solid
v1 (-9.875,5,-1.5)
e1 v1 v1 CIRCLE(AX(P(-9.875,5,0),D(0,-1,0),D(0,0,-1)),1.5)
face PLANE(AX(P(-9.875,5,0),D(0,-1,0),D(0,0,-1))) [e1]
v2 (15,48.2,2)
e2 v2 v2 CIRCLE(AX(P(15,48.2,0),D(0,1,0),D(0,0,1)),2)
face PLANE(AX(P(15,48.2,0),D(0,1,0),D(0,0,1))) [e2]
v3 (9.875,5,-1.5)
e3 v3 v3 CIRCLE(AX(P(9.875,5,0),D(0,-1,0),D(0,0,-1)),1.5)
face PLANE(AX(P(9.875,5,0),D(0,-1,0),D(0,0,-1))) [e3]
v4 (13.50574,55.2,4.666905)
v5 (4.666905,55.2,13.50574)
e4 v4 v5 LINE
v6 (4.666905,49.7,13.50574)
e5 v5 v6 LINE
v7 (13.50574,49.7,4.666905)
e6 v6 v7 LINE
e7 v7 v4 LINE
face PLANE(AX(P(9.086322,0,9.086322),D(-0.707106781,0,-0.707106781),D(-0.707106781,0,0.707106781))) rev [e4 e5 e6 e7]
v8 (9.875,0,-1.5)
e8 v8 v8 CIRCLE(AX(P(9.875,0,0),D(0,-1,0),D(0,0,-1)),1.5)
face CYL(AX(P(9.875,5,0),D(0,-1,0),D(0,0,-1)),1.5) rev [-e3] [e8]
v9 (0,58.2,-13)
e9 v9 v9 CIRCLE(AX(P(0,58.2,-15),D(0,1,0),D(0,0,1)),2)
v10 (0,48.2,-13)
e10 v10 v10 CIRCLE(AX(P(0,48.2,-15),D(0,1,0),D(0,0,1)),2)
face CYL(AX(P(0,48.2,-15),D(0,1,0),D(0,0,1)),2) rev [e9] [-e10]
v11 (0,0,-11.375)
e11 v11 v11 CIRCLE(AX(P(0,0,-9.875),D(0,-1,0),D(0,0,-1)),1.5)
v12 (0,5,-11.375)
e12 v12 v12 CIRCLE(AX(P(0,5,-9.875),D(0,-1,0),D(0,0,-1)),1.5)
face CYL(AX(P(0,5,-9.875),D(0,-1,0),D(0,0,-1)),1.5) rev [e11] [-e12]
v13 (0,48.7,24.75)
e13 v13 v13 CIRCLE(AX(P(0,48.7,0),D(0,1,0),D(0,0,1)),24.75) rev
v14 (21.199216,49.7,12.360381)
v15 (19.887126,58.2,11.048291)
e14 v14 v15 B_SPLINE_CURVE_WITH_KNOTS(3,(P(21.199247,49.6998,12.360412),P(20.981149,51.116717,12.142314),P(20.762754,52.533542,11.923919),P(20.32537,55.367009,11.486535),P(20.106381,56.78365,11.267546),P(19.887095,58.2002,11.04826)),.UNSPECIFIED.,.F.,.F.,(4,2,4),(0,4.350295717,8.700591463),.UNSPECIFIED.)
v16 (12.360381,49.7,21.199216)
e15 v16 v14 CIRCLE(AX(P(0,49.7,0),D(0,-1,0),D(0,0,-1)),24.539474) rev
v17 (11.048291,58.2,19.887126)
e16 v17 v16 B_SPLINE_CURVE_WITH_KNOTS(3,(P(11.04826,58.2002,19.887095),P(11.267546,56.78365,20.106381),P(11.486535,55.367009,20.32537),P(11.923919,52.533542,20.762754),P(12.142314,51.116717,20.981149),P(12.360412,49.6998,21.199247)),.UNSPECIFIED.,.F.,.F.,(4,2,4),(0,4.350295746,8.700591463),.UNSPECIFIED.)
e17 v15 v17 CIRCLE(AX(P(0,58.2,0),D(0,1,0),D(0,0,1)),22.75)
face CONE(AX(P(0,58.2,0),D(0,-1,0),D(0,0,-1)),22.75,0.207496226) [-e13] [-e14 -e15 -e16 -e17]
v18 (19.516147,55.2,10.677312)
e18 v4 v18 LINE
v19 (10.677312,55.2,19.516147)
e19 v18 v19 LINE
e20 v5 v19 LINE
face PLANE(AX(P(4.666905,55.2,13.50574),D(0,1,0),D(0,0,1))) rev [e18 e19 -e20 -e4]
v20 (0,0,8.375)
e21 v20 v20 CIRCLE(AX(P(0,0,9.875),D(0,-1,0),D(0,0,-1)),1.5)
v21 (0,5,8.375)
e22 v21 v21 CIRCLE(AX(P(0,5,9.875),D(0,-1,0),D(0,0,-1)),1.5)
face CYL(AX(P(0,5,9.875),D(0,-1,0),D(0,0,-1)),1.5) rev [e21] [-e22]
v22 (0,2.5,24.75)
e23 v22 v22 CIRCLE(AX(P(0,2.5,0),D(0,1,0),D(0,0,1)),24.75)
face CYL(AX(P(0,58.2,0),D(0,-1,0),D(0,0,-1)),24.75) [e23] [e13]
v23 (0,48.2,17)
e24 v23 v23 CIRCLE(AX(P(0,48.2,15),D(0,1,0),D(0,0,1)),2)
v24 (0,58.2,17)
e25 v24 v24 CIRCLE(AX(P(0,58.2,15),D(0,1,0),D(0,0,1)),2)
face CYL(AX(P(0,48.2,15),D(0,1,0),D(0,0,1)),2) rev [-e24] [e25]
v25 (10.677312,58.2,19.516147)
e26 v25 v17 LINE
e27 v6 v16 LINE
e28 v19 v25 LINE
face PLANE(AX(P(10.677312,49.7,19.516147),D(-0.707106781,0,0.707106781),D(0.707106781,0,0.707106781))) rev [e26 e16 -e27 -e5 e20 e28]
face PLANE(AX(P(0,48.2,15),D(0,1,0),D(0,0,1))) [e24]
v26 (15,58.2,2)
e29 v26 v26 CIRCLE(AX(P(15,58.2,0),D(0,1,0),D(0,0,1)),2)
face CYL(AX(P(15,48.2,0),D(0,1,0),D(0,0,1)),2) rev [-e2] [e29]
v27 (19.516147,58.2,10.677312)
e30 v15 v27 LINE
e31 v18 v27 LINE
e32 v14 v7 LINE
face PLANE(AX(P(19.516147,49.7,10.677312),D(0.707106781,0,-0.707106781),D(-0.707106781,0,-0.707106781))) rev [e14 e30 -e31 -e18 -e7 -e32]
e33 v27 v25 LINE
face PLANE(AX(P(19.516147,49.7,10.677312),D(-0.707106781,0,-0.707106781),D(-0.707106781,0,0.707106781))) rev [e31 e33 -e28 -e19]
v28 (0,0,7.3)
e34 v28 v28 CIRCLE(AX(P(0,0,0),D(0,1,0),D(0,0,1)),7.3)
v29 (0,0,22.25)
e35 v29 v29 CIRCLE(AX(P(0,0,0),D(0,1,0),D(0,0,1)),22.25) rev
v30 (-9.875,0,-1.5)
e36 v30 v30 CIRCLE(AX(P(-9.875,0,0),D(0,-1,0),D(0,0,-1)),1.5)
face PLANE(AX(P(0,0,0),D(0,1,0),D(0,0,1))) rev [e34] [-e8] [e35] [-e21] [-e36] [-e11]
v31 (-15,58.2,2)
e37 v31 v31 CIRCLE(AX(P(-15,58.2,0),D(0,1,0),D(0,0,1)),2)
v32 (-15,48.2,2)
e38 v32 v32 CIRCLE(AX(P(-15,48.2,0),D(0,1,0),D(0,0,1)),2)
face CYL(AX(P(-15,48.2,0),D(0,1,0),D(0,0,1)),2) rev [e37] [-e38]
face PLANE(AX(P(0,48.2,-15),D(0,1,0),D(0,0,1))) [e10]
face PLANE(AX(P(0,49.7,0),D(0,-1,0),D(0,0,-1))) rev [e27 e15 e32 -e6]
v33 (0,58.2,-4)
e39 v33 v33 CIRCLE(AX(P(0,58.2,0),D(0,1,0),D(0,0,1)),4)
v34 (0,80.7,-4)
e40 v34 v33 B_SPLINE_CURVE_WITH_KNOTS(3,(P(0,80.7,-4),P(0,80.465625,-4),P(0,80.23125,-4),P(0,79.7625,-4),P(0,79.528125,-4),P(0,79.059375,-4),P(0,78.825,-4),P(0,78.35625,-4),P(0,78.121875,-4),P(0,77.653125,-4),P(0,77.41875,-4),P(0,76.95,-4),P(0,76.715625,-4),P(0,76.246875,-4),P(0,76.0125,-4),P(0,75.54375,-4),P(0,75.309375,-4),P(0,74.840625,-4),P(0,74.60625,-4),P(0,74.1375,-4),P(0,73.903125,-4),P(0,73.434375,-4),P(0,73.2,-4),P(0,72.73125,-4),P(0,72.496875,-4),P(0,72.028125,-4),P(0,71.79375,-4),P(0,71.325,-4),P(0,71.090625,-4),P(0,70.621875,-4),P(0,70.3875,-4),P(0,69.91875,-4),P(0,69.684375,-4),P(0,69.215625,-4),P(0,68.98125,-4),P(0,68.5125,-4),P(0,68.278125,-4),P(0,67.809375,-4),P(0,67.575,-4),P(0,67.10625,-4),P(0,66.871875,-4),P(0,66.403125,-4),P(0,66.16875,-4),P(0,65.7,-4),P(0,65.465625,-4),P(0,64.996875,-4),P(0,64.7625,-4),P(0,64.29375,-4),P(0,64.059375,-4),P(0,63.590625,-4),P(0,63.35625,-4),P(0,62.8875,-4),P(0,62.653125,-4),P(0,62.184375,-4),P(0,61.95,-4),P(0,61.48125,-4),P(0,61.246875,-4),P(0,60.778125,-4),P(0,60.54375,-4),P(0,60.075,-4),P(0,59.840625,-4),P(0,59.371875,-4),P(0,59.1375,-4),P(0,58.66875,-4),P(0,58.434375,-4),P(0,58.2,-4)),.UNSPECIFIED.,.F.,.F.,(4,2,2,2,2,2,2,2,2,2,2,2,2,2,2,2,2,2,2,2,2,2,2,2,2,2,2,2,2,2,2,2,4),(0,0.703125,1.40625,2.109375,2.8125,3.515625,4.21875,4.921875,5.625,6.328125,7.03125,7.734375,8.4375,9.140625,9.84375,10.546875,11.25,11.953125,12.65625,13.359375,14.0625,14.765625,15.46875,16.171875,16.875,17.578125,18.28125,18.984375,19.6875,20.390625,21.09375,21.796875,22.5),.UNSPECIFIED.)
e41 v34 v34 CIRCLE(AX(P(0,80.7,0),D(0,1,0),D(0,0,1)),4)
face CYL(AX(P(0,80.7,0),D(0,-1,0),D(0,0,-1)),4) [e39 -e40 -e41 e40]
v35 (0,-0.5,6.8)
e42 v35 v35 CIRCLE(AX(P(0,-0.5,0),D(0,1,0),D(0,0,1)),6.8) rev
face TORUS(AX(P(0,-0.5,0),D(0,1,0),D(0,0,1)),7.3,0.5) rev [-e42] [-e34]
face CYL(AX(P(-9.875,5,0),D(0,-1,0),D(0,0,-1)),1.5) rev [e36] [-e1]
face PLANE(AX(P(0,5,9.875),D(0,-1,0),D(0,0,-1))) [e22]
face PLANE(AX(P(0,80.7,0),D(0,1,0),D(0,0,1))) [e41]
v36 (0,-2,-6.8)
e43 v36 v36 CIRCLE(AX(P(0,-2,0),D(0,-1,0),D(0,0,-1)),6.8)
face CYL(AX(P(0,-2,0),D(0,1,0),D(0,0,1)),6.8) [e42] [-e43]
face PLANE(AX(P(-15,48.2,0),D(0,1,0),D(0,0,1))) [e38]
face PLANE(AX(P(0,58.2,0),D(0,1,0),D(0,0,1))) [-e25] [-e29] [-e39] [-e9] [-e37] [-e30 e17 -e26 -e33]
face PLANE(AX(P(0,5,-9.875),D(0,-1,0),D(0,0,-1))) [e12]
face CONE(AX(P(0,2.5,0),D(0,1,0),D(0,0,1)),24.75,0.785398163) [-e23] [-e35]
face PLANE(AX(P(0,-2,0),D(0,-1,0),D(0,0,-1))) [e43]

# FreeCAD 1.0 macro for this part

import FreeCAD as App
import Part
import Sketcher
from FreeCAD import Vector
Q = App.Units.Quantity


def edges_at(feature, points):
    """Names of the edges that pass closest to the given points."""
    edges = feature.Shape.Edges
    near = lambda p: min(range(len(edges)), key=lambda i: edges[i].distToShape(Part.Vertex(*p))[0])
    return sorted({f"Edge{near(p) + 1}" for p in points})

doc = App.newDocument("Part")
body = doc.addObject("PartDesign::Body", "Body")

# Sketch on XZ plane
sketch1 = body.newObject("Sketcher::SketchObject", "Sketch")
sketch1.AttachmentSupport = (doc.getObject("XZ_Plane"), [""])
sketch1.MapMode = "FlatFace"
sketch1.addGeometry(Part.Circle(Vector(0, 0, 0), Vector(0, 0, 1), 25), False)
sketch1.addConstraint(Sketcher.Constraint("Coincident", 0, 3, -1, 1))
sketch1.addConstraint(Sketcher.Constraint("Diameter", 0, 49.5))
pad1 = body.newObject("PartDesign::Pad", "Pad")
pad1.Profile = sketch1
pad1.Length = 58.2
pad1.Reversed = True

# Sketch on XZ plane
sketch2 = body.newObject("Sketcher::SketchObject", "Sketch001")
sketch2.AttachmentSupport = (doc.getObject("XZ_Plane"), [""])
sketch2.MapMode = "FlatFace"
sketch2.AttachmentOffset = App.Placement(Vector(0, 0, -58.2), App.Rotation())
sketch2.addGeometry(Part.Circle(Vector(0, 0, 0), Vector(0, 0, 1), 4), False)
sketch2.addConstraint(Sketcher.Constraint("Coincident", 0, 3, -1, 1))
sketch2.addConstraint(Sketcher.Constraint("Diameter", 0, 8.0))
pad2 = body.newObject("PartDesign::Pad", "Pad001")
pad2.Profile = sketch2
pad2.Length = 22.5
pad2.Reversed = True
doc.recompute()

chamfer = body.newObject("PartDesign::Chamfer", "Chamfer")
chamfer.Base = (pad2, edges_at(pad2, [(0, 0, -24.75)]))
chamfer.Size = 2.5

# Sketch on XZ plane
sketch3 = body.newObject("Sketcher::SketchObject", "Sketch002")
sketch3.AttachmentSupport = (doc.getObject("XZ_Plane"), [""])
sketch3.MapMode = "FlatFace"
sketch3.addGeometry(Part.Circle(Vector(0, 0, 0), Vector(0, 0, 1), 7), False)
sketch3.addConstraint(Sketcher.Constraint("Coincident", 0, 3, -1, 1))
sketch3.addConstraint(Sketcher.Constraint("Diameter", 0, 13.6))
pad3 = body.newObject("PartDesign::Pad", "Pad002")
pad3.Profile = sketch3
pad3.Length = 2
doc.recompute()

fillet = body.newObject("PartDesign::Fillet", "Fillet")
fillet.Base = (pad3, edges_at(pad3, [(0, 0, 6.8)]))
fillet.Radius = 0.5

# Sketch on XZ plane
sketch4 = body.newObject("Sketcher::SketchObject", "Sketch003")
sketch4.AttachmentSupport = (doc.getObject("XZ_Plane"), [""])
sketch4.MapMode = "FlatFace"
sketch4.AttachmentOffset = App.Placement(Vector(0, 0, -58.2), App.Rotation())
sketch4.addGeometry(Part.Circle(Vector(0, -15, 0), Vector(0, 0, 1), 2), False)
sketch4.addGeometry(Part.Circle(Vector(15, 0, 0), Vector(0, 0, 1), 2), False)
sketch4.addGeometry(Part.Circle(Vector(0, 15, 0), Vector(0, 0, 1), 2), False)
sketch4.addGeometry(Part.Circle(Vector(-15, 0, 0), Vector(0, 0, 1), 2), False)
sketch4.addConstraint(Sketcher.Constraint("Equal", 0, 1))
sketch4.addConstraint(Sketcher.Constraint("Equal", 1, 2))
sketch4.addConstraint(Sketcher.Constraint("Equal", 2, 3))
sketch4.addConstraint(Sketcher.Constraint("Symmetric", 0, 3, 2, 3, -1, 1))
sketch4.addConstraint(Sketcher.Constraint("Symmetric", 1, 3, 3, 3, -1, 1))
sketch4.addConstraint(Sketcher.Constraint("PointOnObject", 0, 3, -2))
sketch4.addConstraint(Sketcher.Constraint("PointOnObject", 1, 3, -1))
sketch4.addConstraint(Sketcher.Constraint("Diameter", 0, 4.0))
sketch4.addConstraint(Sketcher.Constraint("DistanceY", 0, 3, -1, 1, 15.0))
sketch4.addConstraint(Sketcher.Constraint("DistanceX", -1, 1, 1, 3, 15.0))
pocket1 = body.newObject("PartDesign::Pocket", "Pocket")
pocket1.Profile = sketch4
pocket1.Length = 10
pocket1.Reversed = True

# Sketch on XZ plane
sketch5 = body.newObject("Sketcher::SketchObject", "Sketch004")
sketch5.AttachmentSupport = (doc.getObject("XZ_Plane"), [""])
sketch5.MapMode = "FlatFace"
sketch5.addGeometry(Part.Circle(Vector(0, 9.9, 0), Vector(0, 0, 1), 1.5), False)
sketch5.addGeometry(Part.Circle(Vector(9.9, 0, 0), Vector(0, 0, 1), 1.5), False)
sketch5.addGeometry(Part.Circle(Vector(0, -9.9, 0), Vector(0, 0, 1), 1.5), False)
sketch5.addGeometry(Part.Circle(Vector(-9.9, 0, 0), Vector(0, 0, 1), 1.5), False)
sketch5.addConstraint(Sketcher.Constraint("Equal", 0, 1))
sketch5.addConstraint(Sketcher.Constraint("Equal", 1, 2))
sketch5.addConstraint(Sketcher.Constraint("Equal", 2, 3))
sketch5.addConstraint(Sketcher.Constraint("Symmetric", 0, 3, 2, 3, -1, 1))
sketch5.addConstraint(Sketcher.Constraint("Symmetric", 1, 3, 3, 3, -1, 1))
sketch5.addConstraint(Sketcher.Constraint("PointOnObject", 0, 3, -2))
sketch5.addConstraint(Sketcher.Constraint("PointOnObject", 1, 3, -1))
sketch5.addConstraint(Sketcher.Constraint("Diameter", 0, 3.0))
sketch5.addConstraint(Sketcher.Constraint("DistanceY", 2, 3, 0, 3, 19.75))
sketch5.addConstraint(Sketcher.Constraint("DistanceX", 3, 3, 1, 3, 19.75))
pocket2 = body.newObject("PartDesign::Pocket", "Pocket001")
pocket2.Profile = sketch5
pocket2.Length = 5
doc.recompute()

chamfer2 = body.newObject("PartDesign::Chamfer", "Chamfer001")
chamfer2.Base = (pocket2, edges_at(pocket2, [(0, 58.2, -24.75)]))
chamfer2.ChamferType = "Two distances"
chamfer2.Size = 9.5
chamfer2.Size2 = 2

# Sketch on XZ plane
sketch6 = body.newObject("Sketcher::SketchObject", "Sketch005")
sketch6.AttachmentSupport = (doc.getObject("XZ_Plane"), [""])
sketch6.MapMode = "FlatFace"
sketch6.AttachmentOffset = App.Placement(Vector(0, 0, -58.2), App.Rotation())
sketch6.addGeometry(Part.LineSegment(Vector(20, 11, 0), Vector(11, 20, 0)), False)
sketch6.addGeometry(Part.LineSegment(Vector(11, 20, 0), Vector(18, 27, 0)), False)
sketch6.addGeometry(Part.LineSegment(Vector(18, 27, 0), Vector(27, 18, 0)), False)
sketch6.addGeometry(Part.LineSegment(Vector(27, 18, 0), Vector(20, 11, 0)), False)
sketch6.addConstraint(Sketcher.Constraint("Coincident", 0, 2, 1, 1))
sketch6.addConstraint(Sketcher.Constraint("Coincident", 1, 2, 2, 1))
sketch6.addConstraint(Sketcher.Constraint("Coincident", 2, 2, 3, 1))
sketch6.addConstraint(Sketcher.Constraint("Coincident", 3, 2, 0, 1))
sketch6.addConstraint(Sketcher.Constraint("Perpendicular", 0, 1))
sketch6.addConstraint(Sketcher.Constraint("Perpendicular", 1, 2))
sketch6.addConstraint(Sketcher.Constraint("Perpendicular", 2, 3))
sketch6.addConstraint(Sketcher.Constraint("Angle", 0, Q("135 deg")))
sketch6.addConstraint(Sketcher.Constraint("Distance", 1, 10.0))
sketch6.addConstraint(Sketcher.Constraint("Distance", 0, 12.5))
sketch6.addConstraint(Sketcher.Constraint("DistanceX", -1, 1, 1, 2, 17.74838))
sketch6.addConstraint(Sketcher.Constraint("DistanceY", -1, 1, 2, 2, 17.74838))
pocket3 = body.newObject("PartDesign::Pocket", "Pocket002")
pocket3.Profile = sketch6
pocket3.Length = 8.5
pocket3.Reversed = True

# Sketch on an angled plane
sketch7 = body.newObject("Sketcher::SketchObject", "Sketch006")
sketch7.Placement = App.Placement(Vector(15.09673, 0, 15.09673), App.Rotation(Vector(0.707106781, 0, -0.707106781), Vector(0, 0.999999999, 0), Vector(0.707106781, 0, 0.707106781), "ZXY"))
sketch7.addGeometry(Part.LineSegment(Vector(-6, 55, 0), Vector(-6, 50, 0)), False)
sketch7.addGeometry(Part.LineSegment(Vector(-6, 50, 0), Vector(6, 50, 0)), False)
sketch7.addGeometry(Part.LineSegment(Vector(6, 50, 0), Vector(6, 55, 0)), False)
sketch7.addGeometry(Part.LineSegment(Vector(6, 55, 0), Vector(-6, 55, 0)), False)
sketch7.addConstraint(Sketcher.Constraint("Coincident", 0, 2, 1, 1))
sketch7.addConstraint(Sketcher.Constraint("Coincident", 1, 2, 2, 1))
sketch7.addConstraint(Sketcher.Constraint("Coincident", 2, 2, 3, 1))
sketch7.addConstraint(Sketcher.Constraint("Coincident", 3, 2, 0, 1))
sketch7.addConstraint(Sketcher.Constraint("Vertical", 0))
sketch7.addConstraint(Sketcher.Constraint("Horizontal", 1))
sketch7.addConstraint(Sketcher.Constraint("Vertical", 2))
sketch7.addConstraint(Sketcher.Constraint("Horizontal", 3))
sketch7.addConstraint(Sketcher.Constraint("DistanceX", 1, 1, 1, 2, 12.5))
sketch7.addConstraint(Sketcher.Constraint("DistanceY", 0, 2, 0, 1, 5.5))
sketch7.addConstraint(Sketcher.Constraint("DistanceY", -1, 1, 0, 2, 49.7))
sketch7.addConstraint(Sketcher.Constraint("DistanceX", 0, 2, -1, 1, 6.25))
pocket4 = body.newObject("PartDesign::Pocket", "Pocket003")
pocket4.Profile = sketch7
pocket4.Length = 8.5

doc.recompute()
